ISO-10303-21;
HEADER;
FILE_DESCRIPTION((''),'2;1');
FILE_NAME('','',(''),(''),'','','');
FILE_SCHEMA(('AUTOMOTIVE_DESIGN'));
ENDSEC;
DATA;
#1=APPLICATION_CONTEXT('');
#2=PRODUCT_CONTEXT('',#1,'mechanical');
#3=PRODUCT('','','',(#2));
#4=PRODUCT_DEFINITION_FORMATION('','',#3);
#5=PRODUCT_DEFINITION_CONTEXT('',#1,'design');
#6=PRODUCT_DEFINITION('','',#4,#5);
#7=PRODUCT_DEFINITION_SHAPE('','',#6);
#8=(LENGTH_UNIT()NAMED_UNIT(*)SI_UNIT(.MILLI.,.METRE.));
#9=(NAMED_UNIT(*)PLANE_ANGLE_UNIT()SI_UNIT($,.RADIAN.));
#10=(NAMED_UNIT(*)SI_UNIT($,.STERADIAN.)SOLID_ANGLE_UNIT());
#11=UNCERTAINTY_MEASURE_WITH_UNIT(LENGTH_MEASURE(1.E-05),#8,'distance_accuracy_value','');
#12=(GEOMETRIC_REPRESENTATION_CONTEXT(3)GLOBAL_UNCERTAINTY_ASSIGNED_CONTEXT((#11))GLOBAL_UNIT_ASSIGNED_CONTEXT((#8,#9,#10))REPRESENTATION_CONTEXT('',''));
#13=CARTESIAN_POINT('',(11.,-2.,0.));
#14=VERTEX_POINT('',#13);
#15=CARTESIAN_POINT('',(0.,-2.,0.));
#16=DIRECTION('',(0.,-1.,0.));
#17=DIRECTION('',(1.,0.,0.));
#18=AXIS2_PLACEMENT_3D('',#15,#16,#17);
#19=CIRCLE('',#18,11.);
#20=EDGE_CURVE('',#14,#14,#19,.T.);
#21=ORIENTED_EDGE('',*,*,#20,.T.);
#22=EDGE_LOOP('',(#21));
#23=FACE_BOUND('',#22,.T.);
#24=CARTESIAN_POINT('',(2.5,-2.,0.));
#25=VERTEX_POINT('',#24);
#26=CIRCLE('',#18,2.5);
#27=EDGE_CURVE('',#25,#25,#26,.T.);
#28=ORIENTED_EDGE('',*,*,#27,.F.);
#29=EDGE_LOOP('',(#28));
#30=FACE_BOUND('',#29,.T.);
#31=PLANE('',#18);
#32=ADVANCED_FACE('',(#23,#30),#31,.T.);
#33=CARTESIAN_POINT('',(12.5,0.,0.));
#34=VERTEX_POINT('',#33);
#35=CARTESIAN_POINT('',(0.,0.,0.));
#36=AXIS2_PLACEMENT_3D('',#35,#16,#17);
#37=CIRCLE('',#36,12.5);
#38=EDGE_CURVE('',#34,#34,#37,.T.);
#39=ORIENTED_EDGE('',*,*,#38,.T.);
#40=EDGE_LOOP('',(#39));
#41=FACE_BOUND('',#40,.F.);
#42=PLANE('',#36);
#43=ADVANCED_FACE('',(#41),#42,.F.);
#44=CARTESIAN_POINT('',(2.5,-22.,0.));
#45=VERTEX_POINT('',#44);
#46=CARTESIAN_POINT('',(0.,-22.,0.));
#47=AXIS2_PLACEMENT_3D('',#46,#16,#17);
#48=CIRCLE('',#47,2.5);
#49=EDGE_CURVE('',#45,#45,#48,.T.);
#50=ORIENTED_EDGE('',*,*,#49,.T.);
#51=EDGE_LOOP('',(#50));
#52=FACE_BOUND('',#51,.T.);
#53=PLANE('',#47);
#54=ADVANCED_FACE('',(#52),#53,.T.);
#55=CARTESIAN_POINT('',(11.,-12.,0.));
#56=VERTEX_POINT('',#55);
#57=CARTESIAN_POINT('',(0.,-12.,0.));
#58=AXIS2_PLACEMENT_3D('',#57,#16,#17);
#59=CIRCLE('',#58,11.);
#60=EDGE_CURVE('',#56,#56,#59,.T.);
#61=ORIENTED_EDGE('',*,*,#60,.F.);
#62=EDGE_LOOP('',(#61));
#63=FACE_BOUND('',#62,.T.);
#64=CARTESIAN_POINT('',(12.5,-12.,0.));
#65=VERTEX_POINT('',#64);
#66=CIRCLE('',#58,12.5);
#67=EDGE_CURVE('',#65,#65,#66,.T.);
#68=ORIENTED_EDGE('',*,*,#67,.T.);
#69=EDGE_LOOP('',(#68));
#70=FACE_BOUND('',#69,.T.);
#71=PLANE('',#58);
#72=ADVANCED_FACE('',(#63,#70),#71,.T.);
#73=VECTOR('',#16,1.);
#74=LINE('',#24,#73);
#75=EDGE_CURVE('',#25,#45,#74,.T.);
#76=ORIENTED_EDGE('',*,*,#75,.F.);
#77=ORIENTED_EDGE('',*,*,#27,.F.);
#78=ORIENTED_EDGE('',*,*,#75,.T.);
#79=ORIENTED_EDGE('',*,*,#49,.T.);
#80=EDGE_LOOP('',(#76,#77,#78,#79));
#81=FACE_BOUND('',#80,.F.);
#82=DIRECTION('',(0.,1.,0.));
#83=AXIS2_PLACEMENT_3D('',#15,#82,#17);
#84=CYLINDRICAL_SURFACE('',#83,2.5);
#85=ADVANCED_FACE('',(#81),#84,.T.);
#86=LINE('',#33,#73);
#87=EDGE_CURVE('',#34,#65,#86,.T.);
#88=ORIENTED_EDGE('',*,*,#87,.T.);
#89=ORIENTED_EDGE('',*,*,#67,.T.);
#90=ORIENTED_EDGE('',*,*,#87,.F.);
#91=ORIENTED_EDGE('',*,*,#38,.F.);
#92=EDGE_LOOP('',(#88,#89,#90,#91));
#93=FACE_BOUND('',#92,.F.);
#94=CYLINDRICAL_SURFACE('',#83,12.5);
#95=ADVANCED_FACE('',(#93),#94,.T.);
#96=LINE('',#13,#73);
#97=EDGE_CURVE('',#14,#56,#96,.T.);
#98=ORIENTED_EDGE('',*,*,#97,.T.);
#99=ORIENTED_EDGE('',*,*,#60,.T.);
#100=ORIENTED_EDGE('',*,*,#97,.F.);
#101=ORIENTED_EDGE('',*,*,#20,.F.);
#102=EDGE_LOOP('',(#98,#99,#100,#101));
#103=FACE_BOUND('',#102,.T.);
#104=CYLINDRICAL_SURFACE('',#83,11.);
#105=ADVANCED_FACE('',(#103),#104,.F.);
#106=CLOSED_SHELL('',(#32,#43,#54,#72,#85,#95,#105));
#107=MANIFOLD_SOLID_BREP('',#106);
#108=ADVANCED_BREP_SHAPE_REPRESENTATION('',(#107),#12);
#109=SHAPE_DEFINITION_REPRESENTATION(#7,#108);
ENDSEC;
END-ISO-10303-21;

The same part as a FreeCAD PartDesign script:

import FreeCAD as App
import Part
import Sketcher

doc = App.newDocument("Part")
body = doc.addObject("PartDesign::Body", "Body")

# Sketch on XZ plane
sketch1 = body.newObject("Sketcher::SketchObject", "Sketch")
sketch1.AttachmentSupport = (doc.getObject("XZ_Plane"), [""])
sketch1.MapMode = "FlatFace"
sketch1.addGeometry(Part.Circle(App.Vector(0, 0, 0), App.Vector(0, 0, 1), 12), False)
sketch1.addConstraint([
    Sketcher.Constraint("Coincident", 0, 3, -1, 1),
    Sketcher.Constraint("Diameter", 0, 25.0),
])
pad1 = body.newObject("PartDesign::Pad", "Pad")
pad1.Profile = sketch1
pad1.Length = 2

# Sketch on XZ plane
sketch2 = body.newObject("Sketcher::SketchObject", "Sketch001")
sketch2.AttachmentSupport = (doc.getObject("XZ_Plane"), [""])
sketch2.MapMode = "FlatFace"
sketch2.AttachmentOffset = App.Placement(App.Vector(0, 0, 2), App.Rotation())
sketch2.addGeometry([
    Part.Circle(App.Vector(0, 0, 0), App.Vector(0, 0, 1), 12),
    Part.Circle(App.Vector(0, 0, 0), App.Vector(0, 0, 1), 11),
], False)
sketch2.addConstraint([
    Sketcher.Constraint("Coincident", 0, 3, -1, 1),
    Sketcher.Constraint("Coincident", 1, 3, -1, 1),
    Sketcher.Constraint("Diameter", 0, 25.0),
    Sketcher.Constraint("Diameter", 1, 22.0),
])
pad2 = body.newObject("PartDesign::Pad", "Pad001")
pad2.Profile = sketch2
pad2.Length = 10

# Sketch on XZ plane
sketch3 = body.newObject("Sketcher::SketchObject", "Sketch002")
sketch3.AttachmentSupport = (doc.getObject("XZ_Plane"), [""])
sketch3.MapMode = "FlatFace"
sketch3.AttachmentOffset = App.Placement(App.Vector(0, 0, 2), App.Rotation())
sketch3.addGeometry(Part.Circle(App.Vector(0, 0, 0), App.Vector(0, 0, 1), 2.5), False)
sketch3.addConstraint([
    Sketcher.Constraint("Coincident", 0, 3, -1, 1),
    Sketcher.Constraint("Diameter", 0, 5.0),
])
pad3 = body.newObject("PartDesign::Pad", "Pad002")
pad3.Profile = sketch3
pad3.Length = 20

doc.recompute()
